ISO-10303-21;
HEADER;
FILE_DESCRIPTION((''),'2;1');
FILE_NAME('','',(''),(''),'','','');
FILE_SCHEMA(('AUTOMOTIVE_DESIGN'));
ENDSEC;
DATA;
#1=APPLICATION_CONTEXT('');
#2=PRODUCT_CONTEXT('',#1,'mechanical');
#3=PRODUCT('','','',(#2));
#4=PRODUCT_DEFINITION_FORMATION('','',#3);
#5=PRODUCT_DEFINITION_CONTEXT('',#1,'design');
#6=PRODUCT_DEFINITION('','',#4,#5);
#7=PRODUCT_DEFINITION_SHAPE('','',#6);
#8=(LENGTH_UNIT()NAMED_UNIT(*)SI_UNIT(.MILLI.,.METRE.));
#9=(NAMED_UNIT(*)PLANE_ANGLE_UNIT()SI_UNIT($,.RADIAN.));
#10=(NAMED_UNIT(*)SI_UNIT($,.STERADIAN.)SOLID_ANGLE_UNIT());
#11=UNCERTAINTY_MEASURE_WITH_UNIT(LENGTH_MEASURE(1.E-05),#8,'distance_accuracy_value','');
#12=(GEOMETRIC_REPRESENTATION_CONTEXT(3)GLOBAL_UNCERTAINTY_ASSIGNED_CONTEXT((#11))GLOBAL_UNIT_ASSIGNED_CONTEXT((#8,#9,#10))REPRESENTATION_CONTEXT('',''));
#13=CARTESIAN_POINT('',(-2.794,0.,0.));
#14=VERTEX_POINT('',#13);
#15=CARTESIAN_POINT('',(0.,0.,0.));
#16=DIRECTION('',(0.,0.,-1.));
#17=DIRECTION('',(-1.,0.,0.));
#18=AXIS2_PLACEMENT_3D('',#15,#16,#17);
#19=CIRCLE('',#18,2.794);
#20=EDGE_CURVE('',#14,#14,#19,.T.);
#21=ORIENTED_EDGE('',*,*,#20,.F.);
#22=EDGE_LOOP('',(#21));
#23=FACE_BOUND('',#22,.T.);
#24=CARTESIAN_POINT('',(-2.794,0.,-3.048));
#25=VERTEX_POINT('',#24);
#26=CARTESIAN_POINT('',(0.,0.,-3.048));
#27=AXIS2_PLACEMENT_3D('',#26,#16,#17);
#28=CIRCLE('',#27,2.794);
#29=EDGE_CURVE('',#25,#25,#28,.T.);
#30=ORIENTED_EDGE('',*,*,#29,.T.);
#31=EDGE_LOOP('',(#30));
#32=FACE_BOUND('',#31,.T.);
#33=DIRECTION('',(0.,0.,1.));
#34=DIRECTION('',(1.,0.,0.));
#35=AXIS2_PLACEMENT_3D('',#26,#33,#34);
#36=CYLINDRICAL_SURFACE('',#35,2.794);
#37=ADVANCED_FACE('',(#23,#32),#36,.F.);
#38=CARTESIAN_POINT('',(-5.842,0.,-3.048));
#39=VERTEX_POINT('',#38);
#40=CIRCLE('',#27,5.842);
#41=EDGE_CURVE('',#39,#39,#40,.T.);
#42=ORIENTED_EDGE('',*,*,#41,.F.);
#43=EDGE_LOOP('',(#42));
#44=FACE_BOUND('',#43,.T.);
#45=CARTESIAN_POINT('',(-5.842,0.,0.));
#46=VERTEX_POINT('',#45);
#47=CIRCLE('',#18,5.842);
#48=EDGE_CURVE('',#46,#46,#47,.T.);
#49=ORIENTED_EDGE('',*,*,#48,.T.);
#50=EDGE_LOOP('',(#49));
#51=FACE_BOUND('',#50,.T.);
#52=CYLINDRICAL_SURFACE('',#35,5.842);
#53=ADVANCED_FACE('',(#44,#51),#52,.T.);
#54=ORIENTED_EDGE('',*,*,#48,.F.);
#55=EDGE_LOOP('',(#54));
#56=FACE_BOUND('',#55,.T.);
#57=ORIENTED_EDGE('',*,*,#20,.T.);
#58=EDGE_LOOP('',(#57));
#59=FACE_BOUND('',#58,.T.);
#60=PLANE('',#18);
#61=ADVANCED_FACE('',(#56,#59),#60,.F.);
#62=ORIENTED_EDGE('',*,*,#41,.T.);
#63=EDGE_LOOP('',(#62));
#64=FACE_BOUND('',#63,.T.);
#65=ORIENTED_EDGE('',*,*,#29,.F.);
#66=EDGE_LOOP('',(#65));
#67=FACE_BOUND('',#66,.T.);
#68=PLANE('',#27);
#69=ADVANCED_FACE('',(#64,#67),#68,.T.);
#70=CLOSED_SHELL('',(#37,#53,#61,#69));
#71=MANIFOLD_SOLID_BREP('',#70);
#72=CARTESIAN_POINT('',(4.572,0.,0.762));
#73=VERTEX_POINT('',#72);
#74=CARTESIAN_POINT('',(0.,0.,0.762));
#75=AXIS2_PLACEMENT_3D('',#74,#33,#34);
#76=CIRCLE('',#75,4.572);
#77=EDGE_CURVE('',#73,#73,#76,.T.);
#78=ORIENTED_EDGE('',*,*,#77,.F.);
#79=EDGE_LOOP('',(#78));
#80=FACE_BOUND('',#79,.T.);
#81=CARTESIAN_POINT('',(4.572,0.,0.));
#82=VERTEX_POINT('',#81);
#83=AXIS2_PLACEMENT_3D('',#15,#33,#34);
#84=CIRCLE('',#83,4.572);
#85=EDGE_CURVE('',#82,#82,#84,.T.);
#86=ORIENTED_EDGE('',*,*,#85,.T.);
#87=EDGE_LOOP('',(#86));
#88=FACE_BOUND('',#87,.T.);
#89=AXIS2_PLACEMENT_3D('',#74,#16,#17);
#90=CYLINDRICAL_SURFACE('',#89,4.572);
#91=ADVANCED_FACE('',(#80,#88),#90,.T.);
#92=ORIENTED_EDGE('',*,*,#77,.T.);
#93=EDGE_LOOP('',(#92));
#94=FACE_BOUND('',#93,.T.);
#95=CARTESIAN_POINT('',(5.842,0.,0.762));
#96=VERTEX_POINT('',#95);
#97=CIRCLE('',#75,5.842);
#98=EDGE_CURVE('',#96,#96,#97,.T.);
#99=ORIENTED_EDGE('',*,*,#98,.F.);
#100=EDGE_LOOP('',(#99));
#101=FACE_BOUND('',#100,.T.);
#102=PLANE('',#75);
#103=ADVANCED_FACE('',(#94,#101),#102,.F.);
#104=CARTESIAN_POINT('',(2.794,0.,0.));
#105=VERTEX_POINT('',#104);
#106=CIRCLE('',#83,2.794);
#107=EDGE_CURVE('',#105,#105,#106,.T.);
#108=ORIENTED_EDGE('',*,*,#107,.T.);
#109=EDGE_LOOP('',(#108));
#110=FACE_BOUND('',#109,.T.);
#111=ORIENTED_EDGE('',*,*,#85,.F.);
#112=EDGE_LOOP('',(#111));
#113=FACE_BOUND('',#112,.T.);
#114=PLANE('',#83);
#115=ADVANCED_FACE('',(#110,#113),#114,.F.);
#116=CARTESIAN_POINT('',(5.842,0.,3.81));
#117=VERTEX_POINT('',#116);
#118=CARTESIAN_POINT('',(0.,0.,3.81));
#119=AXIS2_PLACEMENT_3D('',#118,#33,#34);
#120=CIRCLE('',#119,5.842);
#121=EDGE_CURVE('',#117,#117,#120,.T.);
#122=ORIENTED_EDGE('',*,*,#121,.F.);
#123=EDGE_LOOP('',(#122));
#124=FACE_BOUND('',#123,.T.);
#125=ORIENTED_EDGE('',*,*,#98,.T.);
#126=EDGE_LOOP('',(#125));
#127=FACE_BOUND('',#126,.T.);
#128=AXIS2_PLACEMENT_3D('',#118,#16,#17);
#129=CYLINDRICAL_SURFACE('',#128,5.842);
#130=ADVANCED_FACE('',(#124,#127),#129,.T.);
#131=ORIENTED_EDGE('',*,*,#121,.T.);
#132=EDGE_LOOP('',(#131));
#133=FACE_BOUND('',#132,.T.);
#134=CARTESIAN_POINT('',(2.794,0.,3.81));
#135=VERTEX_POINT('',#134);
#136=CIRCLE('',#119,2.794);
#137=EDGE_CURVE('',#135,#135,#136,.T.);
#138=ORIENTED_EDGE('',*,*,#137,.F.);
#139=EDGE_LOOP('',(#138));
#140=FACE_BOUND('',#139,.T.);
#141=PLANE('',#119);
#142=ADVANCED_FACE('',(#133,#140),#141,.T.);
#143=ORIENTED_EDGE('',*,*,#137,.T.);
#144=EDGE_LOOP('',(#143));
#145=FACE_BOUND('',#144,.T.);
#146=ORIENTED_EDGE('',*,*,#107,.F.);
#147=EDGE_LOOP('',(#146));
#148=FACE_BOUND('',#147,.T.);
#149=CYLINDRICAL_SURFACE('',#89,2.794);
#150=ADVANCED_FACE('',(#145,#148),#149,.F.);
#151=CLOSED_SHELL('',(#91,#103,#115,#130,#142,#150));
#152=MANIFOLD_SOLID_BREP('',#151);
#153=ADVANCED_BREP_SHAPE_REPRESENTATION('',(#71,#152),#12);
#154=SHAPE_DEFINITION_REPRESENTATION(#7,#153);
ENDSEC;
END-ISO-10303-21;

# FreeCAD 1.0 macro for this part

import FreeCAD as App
import Part
import Sketcher
Q = App.Units.Quantity

doc = App.newDocument("Part")
body = doc.addObject("PartDesign::Body", "Body")

sketch1 = body.newObject("Sketcher::SketchObject", "Sketch")
sketch1.AttachmentSupport = (doc.getObject("XY_Plane"), [""])
sketch1.MapMode = "FlatFace"
sketch1.addGeometry(Part.Circle(App.Vector(0, 0, 0), App.Vector(0, 0, 1), 4.6), False)
sketch1.addGeometry(Part.Circle(App.Vector(0, 0, 0), App.Vector(0, 0, 1), 2.8), False)
sketch1.addConstraint(Sketcher.Constraint("Coincident", 0, 3, -1, 1))
sketch1.addConstraint(Sketcher.Constraint("Coincident", 1, 3, -1, 1))
sketch1.addConstraint(Sketcher.Constraint("Diameter", 0, Q("0.36 in")))
sketch1.addConstraint(Sketcher.Constraint("Diameter", 1, Q("0.22 in")))
pad1 = body.newObject("PartDesign::Pad", "Pad")
pad1.Profile = sketch1
pad1.Length = Q("0.03 in")

sketch2 = body.newObject("Sketcher::SketchObject", "Sketch001")
sketch2.AttachmentSupport = (doc.getObject("XY_Plane"), [""])
sketch2.MapMode = "FlatFace"
sketch2.AttachmentOffset = App.Placement(App.Vector(0, 0, 0.03 * 25.4), App.Rotation())
sketch2.addGeometry(Part.Circle(App.Vector(0, 0, 0), App.Vector(0, 0, 1), 5.8), False)
sketch2.addGeometry(Part.Circle(App.Vector(0, 0, 0), App.Vector(0, 0, 1), 2.8), False)
sketch2.addConstraint(Sketcher.Constraint("Coincident", 0, 3, -1, 1))
sketch2.addConstraint(Sketcher.Constraint("Coincident", 1, 3, -1, 1))
sketch2.addConstraint(Sketcher.Constraint("Diameter", 0, Q("0.46 in")))
sketch2.addConstraint(Sketcher.Constraint("Diameter", 1, Q("0.22 in")))
pad2 = body.newObject("PartDesign::Pad", "Pad001")
pad2.Profile = sketch2
pad2.Length = Q("0.12 in")
body2 = doc.addObject("PartDesign::Body", "Body001")

sketch3 = body2.newObject("Sketcher::SketchObject", "Sketch002")
sketch3.AttachmentSupport = (doc.getObject("XY_Plane001"), [""])
sketch3.MapMode = "FlatFace"
sketch3.addGeometry(Part.Circle(App.Vector(0, 0, 0), App.Vector(0, 0, 1), 5.8), False)
sketch3.addGeometry(Part.Circle(App.Vector(0, 0, 0), App.Vector(0, 0, 1), 2.8), False)
sketch3.addConstraint(Sketcher.Constraint("Coincident", 0, 3, -1, 1))
sketch3.addConstraint(Sketcher.Constraint("Coincident", 1, 3, -1, 1))
sketch3.addConstraint(Sketcher.Constraint("Diameter", 0, Q("0.46 in")))
sketch3.addConstraint(Sketcher.Constraint("Diameter", 1, Q("0.22 in")))
pad3 = body2.newObject("PartDesign::Pad", "Pad002")
pad3.Profile = sketch3
pad3.Length = Q("0.12 in")
pad3.Reversed = True

doc.recompute()
